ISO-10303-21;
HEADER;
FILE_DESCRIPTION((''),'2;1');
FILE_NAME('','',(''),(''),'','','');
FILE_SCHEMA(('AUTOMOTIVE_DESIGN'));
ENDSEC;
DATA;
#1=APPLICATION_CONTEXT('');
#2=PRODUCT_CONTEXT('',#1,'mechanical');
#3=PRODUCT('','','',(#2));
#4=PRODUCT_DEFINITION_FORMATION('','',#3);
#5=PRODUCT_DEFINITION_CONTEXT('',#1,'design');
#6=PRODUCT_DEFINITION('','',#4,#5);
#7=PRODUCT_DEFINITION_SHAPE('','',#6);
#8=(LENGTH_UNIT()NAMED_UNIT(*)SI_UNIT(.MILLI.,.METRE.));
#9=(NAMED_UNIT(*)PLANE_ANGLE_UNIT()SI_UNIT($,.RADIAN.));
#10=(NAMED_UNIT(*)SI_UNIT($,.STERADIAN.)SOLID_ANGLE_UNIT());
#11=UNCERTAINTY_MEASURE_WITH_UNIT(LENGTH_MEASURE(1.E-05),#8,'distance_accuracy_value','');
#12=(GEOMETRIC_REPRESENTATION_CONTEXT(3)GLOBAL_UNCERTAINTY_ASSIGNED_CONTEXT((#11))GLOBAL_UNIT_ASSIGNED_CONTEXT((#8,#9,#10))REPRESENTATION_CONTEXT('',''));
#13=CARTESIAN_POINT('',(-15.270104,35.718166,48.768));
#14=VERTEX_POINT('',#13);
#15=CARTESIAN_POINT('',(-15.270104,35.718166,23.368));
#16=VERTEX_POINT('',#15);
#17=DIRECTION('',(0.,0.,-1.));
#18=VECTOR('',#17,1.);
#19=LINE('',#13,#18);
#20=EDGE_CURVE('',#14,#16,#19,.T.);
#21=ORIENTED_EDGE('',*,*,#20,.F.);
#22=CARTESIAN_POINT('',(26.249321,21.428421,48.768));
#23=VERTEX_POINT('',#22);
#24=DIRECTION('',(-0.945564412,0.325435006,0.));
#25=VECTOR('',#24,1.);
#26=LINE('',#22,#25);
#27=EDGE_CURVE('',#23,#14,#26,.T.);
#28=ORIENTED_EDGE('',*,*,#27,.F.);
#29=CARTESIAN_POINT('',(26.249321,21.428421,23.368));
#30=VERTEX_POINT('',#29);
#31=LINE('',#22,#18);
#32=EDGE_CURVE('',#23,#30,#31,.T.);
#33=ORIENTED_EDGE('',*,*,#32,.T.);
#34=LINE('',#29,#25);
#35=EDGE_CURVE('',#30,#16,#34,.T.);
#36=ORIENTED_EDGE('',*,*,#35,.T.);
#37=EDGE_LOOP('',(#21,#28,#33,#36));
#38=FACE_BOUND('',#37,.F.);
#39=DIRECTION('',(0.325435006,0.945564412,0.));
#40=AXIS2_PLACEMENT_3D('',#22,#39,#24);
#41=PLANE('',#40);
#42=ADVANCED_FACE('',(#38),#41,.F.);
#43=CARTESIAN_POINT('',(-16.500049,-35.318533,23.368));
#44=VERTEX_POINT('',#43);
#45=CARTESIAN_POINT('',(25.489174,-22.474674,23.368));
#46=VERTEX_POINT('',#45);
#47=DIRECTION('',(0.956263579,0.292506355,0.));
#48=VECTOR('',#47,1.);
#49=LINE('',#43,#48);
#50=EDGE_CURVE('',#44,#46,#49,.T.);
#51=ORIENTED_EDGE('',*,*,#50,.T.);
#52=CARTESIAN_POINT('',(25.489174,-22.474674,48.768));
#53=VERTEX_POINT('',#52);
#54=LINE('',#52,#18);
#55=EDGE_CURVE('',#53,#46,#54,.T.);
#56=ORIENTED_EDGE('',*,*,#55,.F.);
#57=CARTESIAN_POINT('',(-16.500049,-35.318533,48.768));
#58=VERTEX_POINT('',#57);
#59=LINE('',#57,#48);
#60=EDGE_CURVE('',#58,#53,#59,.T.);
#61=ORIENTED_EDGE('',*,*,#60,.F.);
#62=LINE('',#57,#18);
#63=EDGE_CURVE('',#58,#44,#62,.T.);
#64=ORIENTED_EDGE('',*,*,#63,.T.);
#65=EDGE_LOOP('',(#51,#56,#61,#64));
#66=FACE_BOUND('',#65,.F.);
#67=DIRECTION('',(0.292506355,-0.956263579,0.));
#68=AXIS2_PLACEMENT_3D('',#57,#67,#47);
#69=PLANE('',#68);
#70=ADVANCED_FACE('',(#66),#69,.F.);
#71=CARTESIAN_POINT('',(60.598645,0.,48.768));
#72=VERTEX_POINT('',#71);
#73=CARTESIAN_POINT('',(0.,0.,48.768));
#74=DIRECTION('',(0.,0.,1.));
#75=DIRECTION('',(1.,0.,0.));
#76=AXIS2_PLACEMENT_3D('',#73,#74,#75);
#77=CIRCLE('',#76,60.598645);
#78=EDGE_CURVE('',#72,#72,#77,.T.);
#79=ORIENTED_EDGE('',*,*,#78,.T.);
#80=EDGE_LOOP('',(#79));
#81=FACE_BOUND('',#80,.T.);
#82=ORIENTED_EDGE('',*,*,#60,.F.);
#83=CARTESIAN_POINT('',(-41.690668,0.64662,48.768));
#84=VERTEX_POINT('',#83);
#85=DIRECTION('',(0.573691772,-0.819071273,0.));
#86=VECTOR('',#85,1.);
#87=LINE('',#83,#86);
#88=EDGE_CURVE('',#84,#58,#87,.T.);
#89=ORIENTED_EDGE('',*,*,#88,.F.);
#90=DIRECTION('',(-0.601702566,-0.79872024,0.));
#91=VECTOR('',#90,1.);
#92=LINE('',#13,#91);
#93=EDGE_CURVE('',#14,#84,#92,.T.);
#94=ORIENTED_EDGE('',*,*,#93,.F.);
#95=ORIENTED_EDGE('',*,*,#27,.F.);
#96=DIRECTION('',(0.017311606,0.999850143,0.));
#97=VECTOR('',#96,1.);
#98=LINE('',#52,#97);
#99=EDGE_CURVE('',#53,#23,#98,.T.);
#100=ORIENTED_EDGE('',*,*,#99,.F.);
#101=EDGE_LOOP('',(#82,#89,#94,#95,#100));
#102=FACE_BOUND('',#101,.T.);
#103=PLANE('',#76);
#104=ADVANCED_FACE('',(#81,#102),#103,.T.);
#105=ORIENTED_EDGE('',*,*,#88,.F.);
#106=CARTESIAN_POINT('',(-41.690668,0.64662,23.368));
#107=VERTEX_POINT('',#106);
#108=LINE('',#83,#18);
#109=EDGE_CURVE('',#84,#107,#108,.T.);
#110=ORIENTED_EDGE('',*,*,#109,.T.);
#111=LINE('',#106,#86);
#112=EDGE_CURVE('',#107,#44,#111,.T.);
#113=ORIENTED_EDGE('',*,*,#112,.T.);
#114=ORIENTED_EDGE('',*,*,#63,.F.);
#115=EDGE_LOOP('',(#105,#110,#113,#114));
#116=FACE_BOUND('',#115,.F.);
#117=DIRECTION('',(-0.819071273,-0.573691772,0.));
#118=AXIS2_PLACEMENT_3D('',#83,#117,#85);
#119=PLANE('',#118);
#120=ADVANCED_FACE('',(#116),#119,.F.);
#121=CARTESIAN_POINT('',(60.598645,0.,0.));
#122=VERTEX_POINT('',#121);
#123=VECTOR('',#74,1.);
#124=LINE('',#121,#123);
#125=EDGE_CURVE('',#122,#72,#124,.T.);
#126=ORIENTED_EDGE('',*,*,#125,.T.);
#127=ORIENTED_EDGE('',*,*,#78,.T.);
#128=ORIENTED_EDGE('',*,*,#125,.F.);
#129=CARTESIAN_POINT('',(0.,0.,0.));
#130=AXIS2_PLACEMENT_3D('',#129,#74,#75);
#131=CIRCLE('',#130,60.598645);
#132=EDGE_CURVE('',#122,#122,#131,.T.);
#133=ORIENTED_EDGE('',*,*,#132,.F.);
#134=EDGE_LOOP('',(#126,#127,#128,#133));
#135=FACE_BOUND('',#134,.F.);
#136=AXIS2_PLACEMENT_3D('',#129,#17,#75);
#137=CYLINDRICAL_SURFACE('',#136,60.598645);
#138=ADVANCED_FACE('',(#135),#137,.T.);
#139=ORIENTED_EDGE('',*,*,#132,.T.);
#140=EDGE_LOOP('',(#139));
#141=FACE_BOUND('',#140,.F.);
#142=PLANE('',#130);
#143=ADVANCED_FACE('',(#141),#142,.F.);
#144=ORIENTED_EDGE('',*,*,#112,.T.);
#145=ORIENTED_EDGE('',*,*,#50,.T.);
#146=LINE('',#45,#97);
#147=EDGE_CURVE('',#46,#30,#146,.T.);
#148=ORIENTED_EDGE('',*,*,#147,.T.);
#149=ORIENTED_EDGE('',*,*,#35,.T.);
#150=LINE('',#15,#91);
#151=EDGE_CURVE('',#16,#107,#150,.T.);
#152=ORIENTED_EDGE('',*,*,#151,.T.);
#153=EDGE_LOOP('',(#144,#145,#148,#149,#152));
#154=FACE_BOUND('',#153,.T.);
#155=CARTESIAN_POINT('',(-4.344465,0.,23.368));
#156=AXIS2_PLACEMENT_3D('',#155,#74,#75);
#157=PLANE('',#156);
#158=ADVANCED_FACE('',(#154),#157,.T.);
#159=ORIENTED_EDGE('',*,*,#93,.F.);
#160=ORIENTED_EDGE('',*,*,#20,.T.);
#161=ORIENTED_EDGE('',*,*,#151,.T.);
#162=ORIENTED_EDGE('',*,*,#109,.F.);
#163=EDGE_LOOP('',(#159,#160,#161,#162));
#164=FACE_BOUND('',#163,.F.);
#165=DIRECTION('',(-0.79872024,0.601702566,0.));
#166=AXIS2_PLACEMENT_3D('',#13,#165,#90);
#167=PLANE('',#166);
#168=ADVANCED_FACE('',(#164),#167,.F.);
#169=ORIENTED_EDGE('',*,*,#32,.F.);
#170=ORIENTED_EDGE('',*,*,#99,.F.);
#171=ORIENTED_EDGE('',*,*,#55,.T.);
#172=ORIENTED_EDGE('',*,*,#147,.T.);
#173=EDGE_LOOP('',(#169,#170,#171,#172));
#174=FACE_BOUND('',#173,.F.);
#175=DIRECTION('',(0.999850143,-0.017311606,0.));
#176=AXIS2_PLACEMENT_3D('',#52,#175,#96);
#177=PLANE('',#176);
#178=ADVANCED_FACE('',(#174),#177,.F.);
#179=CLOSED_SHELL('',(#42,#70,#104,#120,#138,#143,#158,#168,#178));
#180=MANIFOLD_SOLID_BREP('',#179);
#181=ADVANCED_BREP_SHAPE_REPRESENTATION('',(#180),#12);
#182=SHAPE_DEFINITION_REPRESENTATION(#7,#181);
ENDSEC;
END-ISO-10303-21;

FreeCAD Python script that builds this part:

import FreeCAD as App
import Part
import Sketcher
Q = App.Units.Quantity

doc = App.newDocument("Part")
body = doc.addObject("PartDesign::Body", "Body")

# Sketch on XY plane
sketch1 = body.newObject("Sketcher::SketchObject", "Sketch")
sketch1.AttachmentSupport = (doc.getObject("XY_Plane"), [""])
sketch1.MapMode = "FlatFace"
sketch1.addGeometry(Part.Circle(App.Vector(0, 0, 0), App.Vector(0, 0, 1), 60.598645), False)
sketch1.addConstraint([
    Sketcher.Constraint("Coincident", 0, 3, -1, 1),
    Sketcher.Constraint("Diameter", 0, 121.19729),
])
pad1 = body.newObject("PartDesign::Pad", "Pad")
pad1.Profile = sketch1
pad1.Length = Q("1.92 in")

# Sketch on XY plane
sketch2 = body.newObject("Sketcher::SketchObject", "Sketch001")
sketch2.AttachmentSupport = (doc.getObject("XY_Plane"), [""])
sketch2.MapMode = "FlatFace"
sketch2.AttachmentOffset = App.Placement(App.Vector(0, 0, 1.92 * 25.4), App.Rotation())
sketch2.addGeometry([
    Part.LineSegment(App.Vector(-15.270104, 35.718166, 0), App.Vector(-41.690668, 0.64662, 0)),  # 0
    Part.LineSegment(App.Vector(-41.690668, 0.64662, 0), App.Vector(-16.500049, -35.318533, 0)),  # 1
    Part.LineSegment(App.Vector(-16.500049, -35.318533, 0), App.Vector(25.489174, -22.474674, 0)),  # 2
    Part.LineSegment(App.Vector(25.489174, -22.474674, 0), App.Vector(26.249321, 21.428421, 0)),  # 3
    Part.LineSegment(App.Vector(26.249321, 21.428421, 0), App.Vector(-15.270104, 35.718166, 0)),  # 4
], False)
sketch2.addConstraint([
    Sketcher.Constraint("Coincident", 0, 2, 1, 1),
    Sketcher.Constraint("Coincident", 1, 2, 2, 1),
    Sketcher.Constraint("Coincident", 2, 2, 3, 1),
    Sketcher.Constraint("Coincident", 3, 2, 4, 1),
    Sketcher.Constraint("Coincident", 4, 2, 0, 1),
    Sketcher.Constraint("Equal", 0, 1),
    Sketcher.Constraint("Equal", 1, 2),
    Sketcher.Constraint("Equal", 2, 3),
    Sketcher.Constraint("Equal", 3, 4),
    Sketcher.Constraint("DistanceY", 0, 2, 3, 2, 20.781801),
    Sketcher.Constraint("DistanceY", 1, 2, 4, 2, 71.036699),
    Sketcher.Constraint("DistanceX", 0, 2, -1, 1, 41.690668),
    Sketcher.Constraint("DistanceY", -1, 1, 0, 2, 0.64662),
    Sketcher.Constraint("DistanceX", 1, 2, -1, 1, 16.500049),
    Sketcher.Constraint("DistanceX", -1, 1, 3, 2, 26.249321),
])
pocket1 = body.newObject("PartDesign::Pocket", "Pocket")
pocket1.Profile = sketch2
pocket1.Length = Q("1 in")

doc.recompute()
